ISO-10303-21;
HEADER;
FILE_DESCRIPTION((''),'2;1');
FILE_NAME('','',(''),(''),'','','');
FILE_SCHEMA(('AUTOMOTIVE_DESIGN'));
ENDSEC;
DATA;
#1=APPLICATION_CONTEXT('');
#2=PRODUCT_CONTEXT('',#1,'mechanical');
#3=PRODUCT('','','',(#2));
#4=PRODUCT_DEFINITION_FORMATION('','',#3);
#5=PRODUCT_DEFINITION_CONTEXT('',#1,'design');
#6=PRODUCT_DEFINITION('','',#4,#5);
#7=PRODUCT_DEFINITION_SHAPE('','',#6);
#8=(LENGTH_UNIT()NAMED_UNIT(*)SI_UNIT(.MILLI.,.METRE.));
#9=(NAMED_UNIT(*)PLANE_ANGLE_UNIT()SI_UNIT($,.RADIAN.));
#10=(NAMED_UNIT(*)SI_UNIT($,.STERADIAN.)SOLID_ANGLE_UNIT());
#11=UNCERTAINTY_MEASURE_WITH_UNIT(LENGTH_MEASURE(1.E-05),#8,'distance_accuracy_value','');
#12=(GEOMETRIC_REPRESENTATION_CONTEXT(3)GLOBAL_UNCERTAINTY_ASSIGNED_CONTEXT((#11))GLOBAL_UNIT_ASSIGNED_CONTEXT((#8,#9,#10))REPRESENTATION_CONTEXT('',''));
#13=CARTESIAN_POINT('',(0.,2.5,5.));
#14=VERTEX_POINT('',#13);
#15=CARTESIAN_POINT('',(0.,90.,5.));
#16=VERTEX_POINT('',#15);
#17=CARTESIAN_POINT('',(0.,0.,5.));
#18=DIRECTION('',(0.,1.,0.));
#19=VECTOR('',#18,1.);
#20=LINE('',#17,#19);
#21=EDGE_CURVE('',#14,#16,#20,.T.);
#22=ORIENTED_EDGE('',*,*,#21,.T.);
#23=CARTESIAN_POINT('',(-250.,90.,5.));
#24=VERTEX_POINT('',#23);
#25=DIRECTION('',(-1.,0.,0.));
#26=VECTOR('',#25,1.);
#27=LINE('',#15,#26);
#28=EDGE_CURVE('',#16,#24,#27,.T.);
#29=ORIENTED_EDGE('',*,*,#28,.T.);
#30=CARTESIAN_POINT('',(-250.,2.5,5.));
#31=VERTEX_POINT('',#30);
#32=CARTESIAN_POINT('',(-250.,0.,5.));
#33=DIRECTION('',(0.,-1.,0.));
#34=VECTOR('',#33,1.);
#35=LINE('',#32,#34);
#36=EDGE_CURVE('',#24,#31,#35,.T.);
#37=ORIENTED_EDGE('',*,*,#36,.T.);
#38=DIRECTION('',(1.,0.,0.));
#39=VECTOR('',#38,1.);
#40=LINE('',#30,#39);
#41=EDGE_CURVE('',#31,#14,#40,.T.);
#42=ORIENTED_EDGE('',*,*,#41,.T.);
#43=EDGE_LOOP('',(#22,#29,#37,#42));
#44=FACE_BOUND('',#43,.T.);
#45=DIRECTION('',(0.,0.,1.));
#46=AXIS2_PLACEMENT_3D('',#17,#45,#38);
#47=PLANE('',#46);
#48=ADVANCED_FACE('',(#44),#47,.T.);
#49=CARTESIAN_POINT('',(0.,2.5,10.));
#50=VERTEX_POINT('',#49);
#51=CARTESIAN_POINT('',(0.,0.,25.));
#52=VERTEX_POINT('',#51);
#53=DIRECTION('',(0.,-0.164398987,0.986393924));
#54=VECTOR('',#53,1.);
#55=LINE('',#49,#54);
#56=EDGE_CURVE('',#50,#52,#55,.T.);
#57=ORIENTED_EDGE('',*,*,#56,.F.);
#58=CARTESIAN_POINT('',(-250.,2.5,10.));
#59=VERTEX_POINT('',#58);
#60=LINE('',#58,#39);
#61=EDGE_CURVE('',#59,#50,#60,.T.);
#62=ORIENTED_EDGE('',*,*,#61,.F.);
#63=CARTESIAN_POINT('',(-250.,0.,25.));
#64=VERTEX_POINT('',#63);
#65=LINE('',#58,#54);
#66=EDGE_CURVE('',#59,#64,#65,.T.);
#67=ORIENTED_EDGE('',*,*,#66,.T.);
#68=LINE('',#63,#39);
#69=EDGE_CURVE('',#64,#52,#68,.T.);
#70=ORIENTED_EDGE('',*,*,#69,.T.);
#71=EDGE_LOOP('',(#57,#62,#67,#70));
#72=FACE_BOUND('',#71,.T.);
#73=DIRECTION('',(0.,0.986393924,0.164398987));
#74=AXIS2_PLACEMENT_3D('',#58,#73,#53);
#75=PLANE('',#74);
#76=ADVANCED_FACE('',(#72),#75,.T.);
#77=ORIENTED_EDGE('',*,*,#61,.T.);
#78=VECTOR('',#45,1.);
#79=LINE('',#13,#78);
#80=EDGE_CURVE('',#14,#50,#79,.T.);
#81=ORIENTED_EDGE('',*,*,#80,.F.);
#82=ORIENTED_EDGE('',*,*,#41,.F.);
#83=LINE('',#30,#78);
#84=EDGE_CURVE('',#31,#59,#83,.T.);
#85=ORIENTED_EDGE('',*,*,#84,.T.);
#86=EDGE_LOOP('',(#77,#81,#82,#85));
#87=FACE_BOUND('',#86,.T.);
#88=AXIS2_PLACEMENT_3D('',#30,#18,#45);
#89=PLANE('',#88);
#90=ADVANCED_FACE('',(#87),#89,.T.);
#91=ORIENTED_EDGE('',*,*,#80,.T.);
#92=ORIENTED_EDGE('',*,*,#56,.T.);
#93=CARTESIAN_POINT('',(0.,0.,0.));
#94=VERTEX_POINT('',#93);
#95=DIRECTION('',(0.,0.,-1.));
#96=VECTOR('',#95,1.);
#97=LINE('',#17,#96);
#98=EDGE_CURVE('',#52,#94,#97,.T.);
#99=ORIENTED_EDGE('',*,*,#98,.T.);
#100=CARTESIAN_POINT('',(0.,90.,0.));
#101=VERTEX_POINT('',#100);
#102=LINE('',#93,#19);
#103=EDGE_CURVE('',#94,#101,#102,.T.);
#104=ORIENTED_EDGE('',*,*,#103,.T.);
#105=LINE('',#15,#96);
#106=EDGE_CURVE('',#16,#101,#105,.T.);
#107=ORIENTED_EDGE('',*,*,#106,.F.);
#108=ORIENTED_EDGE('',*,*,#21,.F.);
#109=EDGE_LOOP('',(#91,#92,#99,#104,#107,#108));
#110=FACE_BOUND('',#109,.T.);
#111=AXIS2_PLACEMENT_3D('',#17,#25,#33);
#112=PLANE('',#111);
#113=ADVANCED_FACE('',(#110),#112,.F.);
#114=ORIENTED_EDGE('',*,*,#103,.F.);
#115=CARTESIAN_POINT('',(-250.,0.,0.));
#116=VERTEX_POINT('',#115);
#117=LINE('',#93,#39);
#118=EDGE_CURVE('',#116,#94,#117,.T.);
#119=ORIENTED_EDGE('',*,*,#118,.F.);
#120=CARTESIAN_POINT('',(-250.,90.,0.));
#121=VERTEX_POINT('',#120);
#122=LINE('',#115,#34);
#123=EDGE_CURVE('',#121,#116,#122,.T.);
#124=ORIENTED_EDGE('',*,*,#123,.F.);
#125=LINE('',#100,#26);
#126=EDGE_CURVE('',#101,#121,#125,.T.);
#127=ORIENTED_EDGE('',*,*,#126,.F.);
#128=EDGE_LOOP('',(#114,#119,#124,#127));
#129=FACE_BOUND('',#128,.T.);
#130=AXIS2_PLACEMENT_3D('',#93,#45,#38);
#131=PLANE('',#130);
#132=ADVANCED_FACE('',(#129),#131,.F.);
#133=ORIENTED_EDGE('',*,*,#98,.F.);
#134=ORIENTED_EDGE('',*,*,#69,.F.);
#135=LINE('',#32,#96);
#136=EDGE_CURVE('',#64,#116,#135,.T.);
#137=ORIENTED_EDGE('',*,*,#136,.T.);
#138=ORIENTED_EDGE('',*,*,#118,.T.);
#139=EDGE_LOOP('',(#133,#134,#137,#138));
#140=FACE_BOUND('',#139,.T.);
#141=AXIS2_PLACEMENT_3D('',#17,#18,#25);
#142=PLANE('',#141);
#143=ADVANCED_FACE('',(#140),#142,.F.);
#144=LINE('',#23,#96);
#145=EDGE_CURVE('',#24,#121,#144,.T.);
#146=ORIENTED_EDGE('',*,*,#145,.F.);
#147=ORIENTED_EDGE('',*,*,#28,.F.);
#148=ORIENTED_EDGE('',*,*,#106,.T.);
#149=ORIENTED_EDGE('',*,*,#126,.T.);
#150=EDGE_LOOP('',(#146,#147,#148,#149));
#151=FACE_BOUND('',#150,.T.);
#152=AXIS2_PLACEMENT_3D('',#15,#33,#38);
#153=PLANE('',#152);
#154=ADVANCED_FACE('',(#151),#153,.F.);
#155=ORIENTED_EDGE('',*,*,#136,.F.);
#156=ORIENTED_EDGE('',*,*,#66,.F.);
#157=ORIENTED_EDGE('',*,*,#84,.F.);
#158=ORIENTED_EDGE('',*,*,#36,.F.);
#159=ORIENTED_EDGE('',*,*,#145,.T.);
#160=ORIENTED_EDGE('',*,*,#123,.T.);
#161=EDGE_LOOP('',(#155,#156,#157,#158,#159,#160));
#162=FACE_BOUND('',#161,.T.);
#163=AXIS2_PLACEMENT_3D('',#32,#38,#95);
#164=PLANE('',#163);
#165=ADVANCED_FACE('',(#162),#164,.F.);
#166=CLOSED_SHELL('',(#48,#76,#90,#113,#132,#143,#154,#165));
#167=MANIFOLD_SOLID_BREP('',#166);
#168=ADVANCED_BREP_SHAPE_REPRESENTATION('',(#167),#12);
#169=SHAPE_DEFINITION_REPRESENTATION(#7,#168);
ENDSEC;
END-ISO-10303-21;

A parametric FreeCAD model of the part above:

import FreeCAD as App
import Part
import Sketcher
Q = App.Units.Quantity


def add_polygon(sketch, points):
    """Adds a closed chain of lines whose ends are joined by coincident constraints."""
    first, n = sketch.GeometryCount, len(points)
    for a, b in zip(points, points[1:] + points[:1]):
        sketch.addGeometry(Part.LineSegment(App.Vector(*a, 0), App.Vector(*b, 0)), False)
    for i in range(n):
        sketch.addConstraint(Sketcher.Constraint("Coincident", first + i, 2, first + (i + 1) % n, 1))

doc = App.newDocument("Part")
params = doc.addObject("Spreadsheet::Sheet", "Params")
for row, (alias, value) in enumerate([
    ("sketch1_width", "250 mm"),
    ("sketch1_height", "90 mm"),
    ("pad1_length", "5 mm"),
    ("sketch2_height", "20 mm"),
    ("sketch2_height2", "5 mm"),
    ("sketch2_width", "2.5 mm"),
    ("pad2_length", "250 mm"),
], start=1):
    params.set(f"A{row}", alias)
    params.set(f"B{row}", "=" + value)
    params.setAlias(f"B{row}", alias)

body = doc.addObject("PartDesign::Body", "Body")

# Sketch on XY plane
sketch1 = body.newObject("Sketcher::SketchObject", "Sketch")
sketch1.AttachmentSupport = (doc.getObject("XY_Plane"), [""])
sketch1.MapMode = "FlatFace"
add_polygon(sketch1, [(-250, 90), (-250, 0), (0, 0), (0, 90)])  # lines 0-3
sketch1.addConstraint(Sketcher.Constraint("Vertical", 0))
sketch1.addConstraint(Sketcher.Constraint("Horizontal", 1))
sketch1.addConstraint(Sketcher.Constraint("Vertical", 2))
sketch1.addConstraint(Sketcher.Constraint("Horizontal", 3))
sketch1.addConstraint(Sketcher.Constraint("Coincident", 1, 2, -1, 1))
sketch1.addConstraint(Sketcher.Constraint("DistanceX", 1, 1, 1, 2, Q("250 mm")))
sketch1.addConstraint(Sketcher.Constraint("DistanceY", 0, 2, 0, 1, Q("90 mm")))
sketch1.setExpression("Constraints[9]", "Params.sketch1_width")
sketch1.setExpression("Constraints[10]", "Params.sketch1_height")
pad1 = body.newObject("PartDesign::Pad", "Pad")
pad1.Profile = sketch1
pad1.setExpression("Length", "Params.pad1_length")

# Sketch on YZ plane
sketch2 = body.newObject("Sketcher::SketchObject", "Sketch001")
sketch2.AttachmentSupport = (doc.getObject("YZ_Plane"), [""])
sketch2.MapMode = "FlatFace"
add_polygon(sketch2, [(0, 25), (0, 5), (2.5, 5), (2.5, 10)])  # lines 0-3
sketch2.addConstraint(Sketcher.Constraint("Vertical", 0))
sketch2.addConstraint(Sketcher.Constraint("Horizontal", 1))
sketch2.addConstraint(Sketcher.Constraint("Vertical", 2))
sketch2.addConstraint(Sketcher.Constraint("PointOnObject", 0, 2, -2))
sketch2.addConstraint(Sketcher.Constraint("DistanceY", 0, 2, 0, 1, Q("20 mm")))
sketch2.addConstraint(Sketcher.Constraint("DistanceY", 2, 1, 2, 2, Q("5 mm")))
sketch2.addConstraint(Sketcher.Constraint("DistanceX", 1, 1, 1, 2, Q("2.5 mm")))
sketch2.addConstraint(Sketcher.Constraint("DistanceY", -1, 1, 0, 2, Q("5 mm")))
sketch2.setExpression("Constraints[8]", "Params.sketch2_height")
sketch2.setExpression("Constraints[9]", "Params.sketch2_height2")
sketch2.setExpression("Constraints[10]", "Params.sketch2_width")
pad2 = body.newObject("PartDesign::Pad", "Pad001")
pad2.Profile = sketch2
pad2.setExpression("Length", "Params.pad2_length")
pad2.Reversed = True

doc.recompute()
